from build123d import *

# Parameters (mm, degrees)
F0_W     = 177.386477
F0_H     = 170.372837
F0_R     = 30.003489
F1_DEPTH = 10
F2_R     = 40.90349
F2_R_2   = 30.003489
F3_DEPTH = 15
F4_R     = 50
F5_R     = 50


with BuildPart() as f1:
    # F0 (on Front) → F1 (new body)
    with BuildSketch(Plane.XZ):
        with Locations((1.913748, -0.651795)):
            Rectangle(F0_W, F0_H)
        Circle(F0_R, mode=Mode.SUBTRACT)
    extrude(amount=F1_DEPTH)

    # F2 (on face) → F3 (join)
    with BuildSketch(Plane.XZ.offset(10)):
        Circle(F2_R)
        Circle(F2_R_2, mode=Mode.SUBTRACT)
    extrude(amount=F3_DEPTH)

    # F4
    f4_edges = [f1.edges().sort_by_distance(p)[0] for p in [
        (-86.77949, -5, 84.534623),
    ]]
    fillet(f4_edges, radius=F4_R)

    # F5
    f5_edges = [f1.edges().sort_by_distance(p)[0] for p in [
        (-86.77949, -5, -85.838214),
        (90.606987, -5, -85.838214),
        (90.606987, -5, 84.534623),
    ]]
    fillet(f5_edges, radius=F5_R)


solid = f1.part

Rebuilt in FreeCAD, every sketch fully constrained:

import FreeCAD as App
import Part
import Sketcher
from FreeCAD import Vector


def edges_at(feature, points):
    """Names of the edges that pass closest to the given points."""
    edges = feature.Shape.Edges
    near = lambda p: min(range(len(edges)), key=lambda i: edges[i].distToShape(Part.Vertex(*p))[0])
    return sorted({f"Edge{near(p) + 1}" for p in points})


def add_polygon(sketch, points):
    """Adds a closed chain of lines whose ends are joined by coincident constraints."""
    first, n = sketch.GeometryCount, len(points)
    for a, b in zip(points, points[1:] + points[:1]):
        sketch.addGeometry(Part.LineSegment(App.Vector(*a, 0), App.Vector(*b, 0)), False)
    for i in range(n):
        sketch.addConstraint(Sketcher.Constraint("Coincident", first + i, 2, first + (i + 1) % n, 1))

doc = App.newDocument("Part")
body = doc.addObject("PartDesign::Body", "Body")

# Sketch on XZ plane
sketch1 = doc.addObject("Sketcher::SketchObject", "Sketch")
body.addObject(sketch1)
sketch1.AttachmentSupport = (doc.XZ_Plane, [""])
sketch1.MapMode = "FlatFace"
add_polygon(sketch1, [(-87, 85), (-87, -86), (91, -86), (91, 85)])  # lines 0-3
sketch1.addGeometry(Part.Circle(Vector(0, 0, 0), Vector(0, 0, 1), 30), False)  # 4
sketch1.addConstraint(Sketcher.Constraint("Vertical", 0))
sketch1.addConstraint(Sketcher.Constraint("Horizontal", 1))
sketch1.addConstraint(Sketcher.Constraint("Vertical", 2))
sketch1.addConstraint(Sketcher.Constraint("Horizontal", 3))
sketch1.addConstraint(Sketcher.Constraint("Coincident", 4, 3, -1, 1))
sketch1.addConstraint(Sketcher.Constraint("Diameter", 4, 60.006978))
sketch1.addConstraint(Sketcher.Constraint("DistanceX", 1, 1, 1, 2, 177.386477))
sketch1.addConstraint(Sketcher.Constraint("DistanceY", 0, 2, 0, 1, 170.372837))
sketch1.addConstraint(Sketcher.Constraint("DistanceX", 0, 2, -1, 1, 86.77949))
sketch1.addConstraint(Sketcher.Constraint("DistanceY", 0, 2, -1, 1, 85.838213))
pad1 = doc.addObject("PartDesign::Pad", "Pad")
body.addObject(pad1)
pad1.Profile = sketch1
pad1.Length = 10

# Sketch on XZ plane
sketch2 = doc.addObject("Sketcher::SketchObject", "Sketch001")
body.addObject(sketch2)
sketch2.AttachmentSupport = (doc.XZ_Plane, [""])
sketch2.MapMode = "FlatFace"
sketch2.AttachmentOffset = App.Placement(Vector(0, 0, 10), App.Rotation())
sketch2.addGeometry(Part.Circle(Vector(0, 0, 0), Vector(0, 0, 1), 41), False)
sketch2.addGeometry(Part.Circle(Vector(0, 0, 0), Vector(0, 0, 1), 30), False)
sketch2.addConstraint(Sketcher.Constraint("Coincident", 0, 3, -1, 1))
sketch2.addConstraint(Sketcher.Constraint("Coincident", 1, 3, -1, 1))
sketch2.addConstraint(Sketcher.Constraint("Diameter", 0, 81.80698))
sketch2.addConstraint(Sketcher.Constraint("Diameter", 1, 60.006978))
pad2 = doc.addObject("PartDesign::Pad", "Pad001")
body.addObject(pad2)
pad2.Profile = sketch2
pad2.Length = 15
doc.recompute()

fillet = doc.addObject("PartDesign::Fillet", "Fillet")
body.addObject(fillet)
fillet.Base = (pad2, edges_at(pad2, [(-86.779, -5, 84.535)]))
fillet.Radius = 50
doc.recompute()

fillet2 = doc.addObject("PartDesign::Fillet", "Fillet001")
body.addObject(fillet2)
fillet2.Base = (fillet, edges_at(fillet, [(-86.779, -5, -85.838), (90.607, -5, -85.838), (90.607, -5, 84.535)]))
fillet2.Radius = 50

doc.recompute()
